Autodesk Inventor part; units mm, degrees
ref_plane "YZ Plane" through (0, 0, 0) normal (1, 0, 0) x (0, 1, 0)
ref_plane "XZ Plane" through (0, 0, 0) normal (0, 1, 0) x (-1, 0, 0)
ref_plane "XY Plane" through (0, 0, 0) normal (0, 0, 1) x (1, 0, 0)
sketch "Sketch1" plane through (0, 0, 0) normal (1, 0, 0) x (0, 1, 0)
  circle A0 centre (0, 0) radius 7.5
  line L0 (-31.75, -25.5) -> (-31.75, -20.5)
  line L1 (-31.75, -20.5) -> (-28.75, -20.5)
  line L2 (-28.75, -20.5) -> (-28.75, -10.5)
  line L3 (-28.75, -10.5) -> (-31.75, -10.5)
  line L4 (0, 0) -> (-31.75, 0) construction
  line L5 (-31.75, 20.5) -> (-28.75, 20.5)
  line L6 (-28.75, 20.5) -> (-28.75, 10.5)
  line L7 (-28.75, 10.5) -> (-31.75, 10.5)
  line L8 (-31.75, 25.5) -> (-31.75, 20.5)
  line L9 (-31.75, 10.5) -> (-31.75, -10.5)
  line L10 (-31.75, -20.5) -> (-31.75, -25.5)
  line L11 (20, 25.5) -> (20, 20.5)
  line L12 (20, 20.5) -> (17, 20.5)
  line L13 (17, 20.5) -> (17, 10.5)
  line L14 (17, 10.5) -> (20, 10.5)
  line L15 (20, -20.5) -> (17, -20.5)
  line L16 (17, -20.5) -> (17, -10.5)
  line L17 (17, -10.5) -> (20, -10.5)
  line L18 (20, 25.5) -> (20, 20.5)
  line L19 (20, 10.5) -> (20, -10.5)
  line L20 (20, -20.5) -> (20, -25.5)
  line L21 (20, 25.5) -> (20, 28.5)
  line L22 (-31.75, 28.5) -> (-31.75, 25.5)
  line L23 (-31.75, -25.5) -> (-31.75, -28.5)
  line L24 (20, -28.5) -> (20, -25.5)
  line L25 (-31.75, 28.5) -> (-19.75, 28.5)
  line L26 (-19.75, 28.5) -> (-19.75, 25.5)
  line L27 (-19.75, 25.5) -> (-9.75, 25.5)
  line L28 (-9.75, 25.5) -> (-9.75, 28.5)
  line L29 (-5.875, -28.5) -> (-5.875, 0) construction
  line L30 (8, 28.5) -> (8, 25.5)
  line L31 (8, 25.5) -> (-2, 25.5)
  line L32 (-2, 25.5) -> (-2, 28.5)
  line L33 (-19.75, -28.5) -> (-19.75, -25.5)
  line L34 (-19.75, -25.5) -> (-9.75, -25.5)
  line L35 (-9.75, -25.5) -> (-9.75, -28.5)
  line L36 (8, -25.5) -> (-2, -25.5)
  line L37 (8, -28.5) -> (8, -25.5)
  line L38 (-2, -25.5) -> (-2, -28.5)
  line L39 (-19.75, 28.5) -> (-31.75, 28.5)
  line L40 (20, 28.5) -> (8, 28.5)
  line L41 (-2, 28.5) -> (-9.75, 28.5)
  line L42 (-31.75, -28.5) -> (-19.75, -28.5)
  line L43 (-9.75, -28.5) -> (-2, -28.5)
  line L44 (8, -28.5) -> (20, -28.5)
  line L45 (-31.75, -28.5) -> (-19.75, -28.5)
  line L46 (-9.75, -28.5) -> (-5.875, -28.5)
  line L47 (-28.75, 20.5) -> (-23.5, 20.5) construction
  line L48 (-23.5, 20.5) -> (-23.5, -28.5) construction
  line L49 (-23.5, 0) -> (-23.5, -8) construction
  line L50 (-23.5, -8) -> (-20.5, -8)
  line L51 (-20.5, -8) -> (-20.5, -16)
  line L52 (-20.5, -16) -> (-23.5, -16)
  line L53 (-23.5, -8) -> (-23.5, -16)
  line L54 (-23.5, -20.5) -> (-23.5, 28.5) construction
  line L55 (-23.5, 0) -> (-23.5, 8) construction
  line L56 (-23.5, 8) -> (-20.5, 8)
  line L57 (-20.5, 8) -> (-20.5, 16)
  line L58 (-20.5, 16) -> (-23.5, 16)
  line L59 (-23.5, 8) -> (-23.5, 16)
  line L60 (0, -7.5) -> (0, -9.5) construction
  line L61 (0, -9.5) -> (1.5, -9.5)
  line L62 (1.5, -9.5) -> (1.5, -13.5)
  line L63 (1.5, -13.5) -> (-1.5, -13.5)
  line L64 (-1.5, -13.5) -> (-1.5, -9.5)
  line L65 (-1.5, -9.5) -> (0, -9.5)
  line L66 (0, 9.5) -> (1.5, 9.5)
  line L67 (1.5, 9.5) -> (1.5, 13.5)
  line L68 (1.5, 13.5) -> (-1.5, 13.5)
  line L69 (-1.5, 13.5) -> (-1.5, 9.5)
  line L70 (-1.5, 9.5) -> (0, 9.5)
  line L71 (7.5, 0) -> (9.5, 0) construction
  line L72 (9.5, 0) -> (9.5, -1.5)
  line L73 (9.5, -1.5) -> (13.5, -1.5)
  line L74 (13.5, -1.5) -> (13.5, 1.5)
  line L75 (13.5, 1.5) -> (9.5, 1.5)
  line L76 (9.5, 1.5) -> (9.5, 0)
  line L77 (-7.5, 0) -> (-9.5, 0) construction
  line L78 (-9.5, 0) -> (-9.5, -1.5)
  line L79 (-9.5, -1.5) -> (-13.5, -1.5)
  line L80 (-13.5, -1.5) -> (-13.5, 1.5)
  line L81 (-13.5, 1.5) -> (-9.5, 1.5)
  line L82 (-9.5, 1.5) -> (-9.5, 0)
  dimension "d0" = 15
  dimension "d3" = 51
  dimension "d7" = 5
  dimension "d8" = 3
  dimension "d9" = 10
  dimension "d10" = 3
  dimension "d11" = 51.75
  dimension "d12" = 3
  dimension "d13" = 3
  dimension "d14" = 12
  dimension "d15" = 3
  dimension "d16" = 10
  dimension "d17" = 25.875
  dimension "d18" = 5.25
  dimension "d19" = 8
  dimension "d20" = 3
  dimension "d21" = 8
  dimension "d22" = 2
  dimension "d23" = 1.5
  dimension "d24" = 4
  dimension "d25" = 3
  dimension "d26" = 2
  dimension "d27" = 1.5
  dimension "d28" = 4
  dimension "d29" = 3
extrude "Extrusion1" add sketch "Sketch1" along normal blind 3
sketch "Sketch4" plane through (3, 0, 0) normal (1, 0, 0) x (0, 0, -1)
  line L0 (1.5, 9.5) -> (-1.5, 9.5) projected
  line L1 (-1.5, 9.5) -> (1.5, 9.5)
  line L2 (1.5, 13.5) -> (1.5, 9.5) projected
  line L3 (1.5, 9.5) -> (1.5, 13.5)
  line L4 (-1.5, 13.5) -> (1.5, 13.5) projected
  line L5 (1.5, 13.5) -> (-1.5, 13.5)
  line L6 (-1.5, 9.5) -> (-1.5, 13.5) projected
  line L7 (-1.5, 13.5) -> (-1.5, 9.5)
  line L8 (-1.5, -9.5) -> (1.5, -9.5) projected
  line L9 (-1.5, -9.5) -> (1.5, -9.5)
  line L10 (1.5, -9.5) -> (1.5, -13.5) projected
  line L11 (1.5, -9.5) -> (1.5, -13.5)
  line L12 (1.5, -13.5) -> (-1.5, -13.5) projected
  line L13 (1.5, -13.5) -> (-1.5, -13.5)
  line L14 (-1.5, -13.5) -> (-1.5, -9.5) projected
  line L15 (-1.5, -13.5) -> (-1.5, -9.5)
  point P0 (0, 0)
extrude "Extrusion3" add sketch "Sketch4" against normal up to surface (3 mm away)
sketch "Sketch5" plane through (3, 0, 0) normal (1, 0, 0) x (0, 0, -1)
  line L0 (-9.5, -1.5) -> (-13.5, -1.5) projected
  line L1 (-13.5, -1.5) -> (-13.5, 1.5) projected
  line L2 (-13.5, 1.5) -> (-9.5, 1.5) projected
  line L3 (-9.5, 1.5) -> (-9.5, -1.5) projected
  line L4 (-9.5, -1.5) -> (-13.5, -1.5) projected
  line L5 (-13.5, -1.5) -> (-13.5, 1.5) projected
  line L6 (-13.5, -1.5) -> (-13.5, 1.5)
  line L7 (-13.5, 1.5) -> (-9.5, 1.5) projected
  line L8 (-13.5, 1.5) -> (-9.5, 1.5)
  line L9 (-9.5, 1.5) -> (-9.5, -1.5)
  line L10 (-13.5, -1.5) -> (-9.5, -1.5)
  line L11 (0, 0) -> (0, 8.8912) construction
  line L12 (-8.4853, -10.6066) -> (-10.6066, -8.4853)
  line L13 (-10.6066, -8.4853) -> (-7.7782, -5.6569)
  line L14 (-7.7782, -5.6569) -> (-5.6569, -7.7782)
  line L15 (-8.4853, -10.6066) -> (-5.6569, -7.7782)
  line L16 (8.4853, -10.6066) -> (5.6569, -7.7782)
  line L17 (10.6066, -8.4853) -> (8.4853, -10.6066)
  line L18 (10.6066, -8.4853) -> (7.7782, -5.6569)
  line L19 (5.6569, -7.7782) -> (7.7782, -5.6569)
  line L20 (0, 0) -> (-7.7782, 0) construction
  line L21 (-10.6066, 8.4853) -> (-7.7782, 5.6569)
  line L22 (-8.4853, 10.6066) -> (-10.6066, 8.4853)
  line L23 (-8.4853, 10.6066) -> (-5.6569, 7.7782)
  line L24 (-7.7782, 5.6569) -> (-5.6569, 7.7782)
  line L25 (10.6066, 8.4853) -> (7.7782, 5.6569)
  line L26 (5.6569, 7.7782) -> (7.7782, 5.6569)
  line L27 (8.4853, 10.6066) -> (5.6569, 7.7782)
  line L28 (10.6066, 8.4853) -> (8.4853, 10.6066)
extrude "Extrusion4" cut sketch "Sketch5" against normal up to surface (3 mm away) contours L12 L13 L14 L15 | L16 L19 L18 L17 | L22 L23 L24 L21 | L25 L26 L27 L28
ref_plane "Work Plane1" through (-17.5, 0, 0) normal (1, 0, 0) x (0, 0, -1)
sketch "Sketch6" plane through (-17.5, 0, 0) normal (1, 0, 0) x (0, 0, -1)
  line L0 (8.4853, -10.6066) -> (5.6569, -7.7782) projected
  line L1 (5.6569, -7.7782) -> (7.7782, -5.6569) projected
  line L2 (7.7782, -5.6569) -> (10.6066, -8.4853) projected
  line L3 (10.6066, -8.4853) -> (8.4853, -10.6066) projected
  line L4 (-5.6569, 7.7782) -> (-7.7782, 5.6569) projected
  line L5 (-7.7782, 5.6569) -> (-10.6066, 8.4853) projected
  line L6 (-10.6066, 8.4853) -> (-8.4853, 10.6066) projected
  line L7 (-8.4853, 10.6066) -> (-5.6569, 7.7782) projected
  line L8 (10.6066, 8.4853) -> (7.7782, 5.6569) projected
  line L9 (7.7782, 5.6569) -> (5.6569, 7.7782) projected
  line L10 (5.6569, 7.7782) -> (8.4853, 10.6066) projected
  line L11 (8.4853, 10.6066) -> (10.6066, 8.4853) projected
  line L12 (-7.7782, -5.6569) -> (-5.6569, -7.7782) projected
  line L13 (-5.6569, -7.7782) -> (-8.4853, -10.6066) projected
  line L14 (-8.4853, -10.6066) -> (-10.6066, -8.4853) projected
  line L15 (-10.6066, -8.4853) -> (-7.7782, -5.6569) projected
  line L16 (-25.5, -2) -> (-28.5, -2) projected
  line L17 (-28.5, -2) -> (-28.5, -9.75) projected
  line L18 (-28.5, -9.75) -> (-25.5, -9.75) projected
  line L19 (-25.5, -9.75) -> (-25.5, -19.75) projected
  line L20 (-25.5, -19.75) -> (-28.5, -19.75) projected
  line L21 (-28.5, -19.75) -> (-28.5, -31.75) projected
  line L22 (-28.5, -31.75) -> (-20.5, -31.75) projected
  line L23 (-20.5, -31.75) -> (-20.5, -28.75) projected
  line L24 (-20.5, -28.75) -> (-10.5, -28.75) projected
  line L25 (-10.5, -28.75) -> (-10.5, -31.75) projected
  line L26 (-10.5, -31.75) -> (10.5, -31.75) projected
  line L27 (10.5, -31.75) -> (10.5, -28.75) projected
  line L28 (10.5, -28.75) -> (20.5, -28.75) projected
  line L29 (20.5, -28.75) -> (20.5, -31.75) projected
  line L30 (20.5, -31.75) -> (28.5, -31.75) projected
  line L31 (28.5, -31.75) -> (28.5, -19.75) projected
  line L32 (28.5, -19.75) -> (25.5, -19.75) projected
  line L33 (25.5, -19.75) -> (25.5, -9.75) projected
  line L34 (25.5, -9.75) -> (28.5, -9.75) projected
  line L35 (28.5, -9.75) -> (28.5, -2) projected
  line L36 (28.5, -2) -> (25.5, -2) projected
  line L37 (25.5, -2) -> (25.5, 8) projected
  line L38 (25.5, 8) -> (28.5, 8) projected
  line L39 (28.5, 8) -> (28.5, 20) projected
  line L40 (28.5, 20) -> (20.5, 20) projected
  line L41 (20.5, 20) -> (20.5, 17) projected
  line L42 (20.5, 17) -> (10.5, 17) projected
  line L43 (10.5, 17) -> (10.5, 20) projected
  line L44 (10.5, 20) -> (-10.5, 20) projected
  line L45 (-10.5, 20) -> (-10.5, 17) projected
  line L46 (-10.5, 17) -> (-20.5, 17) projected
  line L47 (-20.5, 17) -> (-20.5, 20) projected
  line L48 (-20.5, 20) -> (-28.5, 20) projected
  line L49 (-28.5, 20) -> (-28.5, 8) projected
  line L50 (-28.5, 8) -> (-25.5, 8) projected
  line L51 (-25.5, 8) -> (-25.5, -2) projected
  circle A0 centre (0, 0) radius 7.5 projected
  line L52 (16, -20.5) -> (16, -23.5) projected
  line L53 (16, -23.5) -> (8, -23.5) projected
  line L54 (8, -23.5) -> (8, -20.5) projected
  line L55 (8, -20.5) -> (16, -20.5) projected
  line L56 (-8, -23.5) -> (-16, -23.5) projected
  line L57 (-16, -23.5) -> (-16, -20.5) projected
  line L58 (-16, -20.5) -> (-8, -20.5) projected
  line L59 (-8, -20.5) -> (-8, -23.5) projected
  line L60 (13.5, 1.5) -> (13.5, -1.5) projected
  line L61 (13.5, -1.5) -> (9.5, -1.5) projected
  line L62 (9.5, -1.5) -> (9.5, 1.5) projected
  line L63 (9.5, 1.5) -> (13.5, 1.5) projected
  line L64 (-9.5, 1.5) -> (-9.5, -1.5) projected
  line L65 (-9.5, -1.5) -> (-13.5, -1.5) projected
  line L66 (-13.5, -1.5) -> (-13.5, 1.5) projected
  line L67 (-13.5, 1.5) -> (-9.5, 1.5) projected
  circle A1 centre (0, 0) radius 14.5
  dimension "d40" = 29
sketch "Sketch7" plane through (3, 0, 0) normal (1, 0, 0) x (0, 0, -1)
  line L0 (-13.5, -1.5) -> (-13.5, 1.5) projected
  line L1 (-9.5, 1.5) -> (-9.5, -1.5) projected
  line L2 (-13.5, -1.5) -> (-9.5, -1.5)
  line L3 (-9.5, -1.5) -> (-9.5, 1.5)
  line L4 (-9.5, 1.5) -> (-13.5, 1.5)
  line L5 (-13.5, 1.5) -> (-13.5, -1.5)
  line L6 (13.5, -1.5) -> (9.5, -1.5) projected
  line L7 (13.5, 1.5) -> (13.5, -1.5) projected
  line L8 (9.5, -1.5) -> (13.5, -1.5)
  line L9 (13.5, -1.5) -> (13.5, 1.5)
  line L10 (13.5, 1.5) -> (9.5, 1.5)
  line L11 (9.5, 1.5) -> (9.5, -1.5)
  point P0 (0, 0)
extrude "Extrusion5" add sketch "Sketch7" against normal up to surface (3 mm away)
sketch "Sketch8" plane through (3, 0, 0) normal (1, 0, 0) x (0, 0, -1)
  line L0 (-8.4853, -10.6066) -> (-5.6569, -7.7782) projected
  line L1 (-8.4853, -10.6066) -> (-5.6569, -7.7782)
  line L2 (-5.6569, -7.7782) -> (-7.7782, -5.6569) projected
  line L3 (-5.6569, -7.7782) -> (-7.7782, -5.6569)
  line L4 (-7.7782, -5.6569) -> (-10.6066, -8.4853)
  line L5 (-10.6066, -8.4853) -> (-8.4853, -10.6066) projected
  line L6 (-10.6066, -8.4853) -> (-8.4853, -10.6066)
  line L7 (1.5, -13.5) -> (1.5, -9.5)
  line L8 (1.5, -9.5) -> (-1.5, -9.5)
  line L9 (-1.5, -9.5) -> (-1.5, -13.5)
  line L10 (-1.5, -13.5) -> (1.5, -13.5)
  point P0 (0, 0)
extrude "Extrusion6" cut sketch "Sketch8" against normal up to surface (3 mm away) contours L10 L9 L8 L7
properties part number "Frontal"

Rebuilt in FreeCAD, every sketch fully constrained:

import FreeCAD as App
import Part
import Sketcher

V = App.Vector


def add_polygon(sketch, points):
    """Adds a closed chain of lines whose ends are joined by coincident constraints."""
    first, n = sketch.GeometryCount, len(points)
    for a, b in zip(points, points[1:] + points[:1]):
        sketch.addGeometry(Part.LineSegment(App.Vector(*a, 0), App.Vector(*b, 0)), False)
    for i in range(n):
        sketch.addConstraint(Sketcher.Constraint("Coincident", first + i, 2, first + (i + 1) % n, 1))

doc = App.newDocument("Part")
body = doc.addObject("PartDesign::Body", "Body")

# Sketch on YZ plane
sketch1 = body.newObject("Sketcher::SketchObject", "Sketch")
sketch1.AttachmentSupport = (doc.getObject("YZ_Plane"), [""])
sketch1.MapMode = "FlatFace"
add_polygon(sketch1, [(-31.75, -20.5), (-31.75, -28.5), (-19.75, -28.5), (-19.75, -25.5), (-9.75, -25.5), (-9.75, -28.5), (-2, -28.5), (-2, -25.5), (8, -25.5), (8, -28.5), (20, -28.5), (20, -20.5), (17, -20.5), (17, -10.5), (20, -10.5), (20, 10.5), (17, 10.5), (17, 20.5), (20, 20.5), (20, 28.5), (8, 28.5), (8, 25.5), (-2, 25.5), (-2, 28.5), (-9.75, 28.5), (-9.75, 25.5), (-19.75, 25.5), (-19.75, 28.5), (-31.75, 28.5), (-31.75, 20.5), (-28.75, 20.5), (-28.75, 10.5), (-31.75, 10.5), (-31.75, -10.5), (-28.75, -10.5), (-28.75, -20.5)])  # lines 0-35
add_polygon(sketch1, [(-23.5, -16), (-23.5, -8), (-20.5, -8), (-20.5, -16)])  # lines 36-39
add_polygon(sketch1, [(-1.5, -9.5), (1.5, -9.5), (1.5, -13.5), (-1.5, -13.5)])  # lines 40-43
add_polygon(sketch1, [(-20.5, 8), (-23.5, 8), (-23.5, 16), (-20.5, 16)])  # lines 44-47
add_polygon(sketch1, [(-9.5, 1.5), (-9.5, -1.5), (-13.5, -1.5), (-13.5, 1.5)])  # lines 48-51
sketch1.addGeometry(Part.Circle(V(0, 0, 0), V(0, 0, 1), 7.5), False)  # 52
add_polygon(sketch1, [(1.5, 9.5), (-1.5, 9.5), (-1.5, 13.5), (1.5, 13.5)])  # lines 53-56
add_polygon(sketch1, [(9.5, -1.5), (9.5, 1.5), (13.5, 1.5), (13.5, -1.5)])  # lines 57-60
sketch1.addConstraint([
    Sketcher.Constraint("Vertical", 0),
    Sketcher.Constraint("Horizontal", 1),
    Sketcher.Constraint("Vertical", 2),
    Sketcher.Constraint("Horizontal", 3),
    Sketcher.Constraint("Vertical", 4),
    Sketcher.Constraint("Horizontal", 5),
    Sketcher.Constraint("Vertical", 6),
    Sketcher.Constraint("Horizontal", 7),
    Sketcher.Constraint("Vertical", 8),
    Sketcher.Constraint("Horizontal", 9),
    Sketcher.Constraint("Vertical", 10),
    Sketcher.Constraint("Horizontal", 11),
    Sketcher.Constraint("Vertical", 12),
    Sketcher.Constraint("Horizontal", 13),
    Sketcher.Constraint("Vertical", 14),
    Sketcher.Constraint("Horizontal", 15),
    Sketcher.Constraint("Vertical", 16),
    Sketcher.Constraint("Horizontal", 17),
    Sketcher.Constraint("Vertical", 18),
    Sketcher.Constraint("Horizontal", 19),
    Sketcher.Constraint("Vertical", 20),
    Sketcher.Constraint("Horizontal", 21),
    Sketcher.Constraint("Vertical", 22),
    Sketcher.Constraint("Horizontal", 23),
    Sketcher.Constraint("Vertical", 24),
    Sketcher.Constraint("Horizontal", 25),
    Sketcher.Constraint("Vertical", 26),
    Sketcher.Constraint("Horizontal", 27),
    Sketcher.Constraint("Vertical", 28),
    Sketcher.Constraint("Horizontal", 29),
    Sketcher.Constraint("Vertical", 30),
    Sketcher.Constraint("Horizontal", 31),
    Sketcher.Constraint("Vertical", 32),
    Sketcher.Constraint("Horizontal", 33),
    Sketcher.Constraint("Vertical", 34),
    Sketcher.Constraint("Horizontal", 35),
    Sketcher.Constraint("Vertical", 36),
    Sketcher.Constraint("Horizontal", 37),
    Sketcher.Constraint("Vertical", 38),
    Sketcher.Constraint("Horizontal", 39),
    Sketcher.Constraint("Horizontal", 40),
    Sketcher.Constraint("Vertical", 41),
    Sketcher.Constraint("Horizontal", 42),
    Sketcher.Constraint("Vertical", 43),
    Sketcher.Constraint("Horizontal", 44),
    Sketcher.Constraint("Vertical", 45),
    Sketcher.Constraint("Horizontal", 46),
    Sketcher.Constraint("Vertical", 47),
    Sketcher.Constraint("Vertical", 48),
    Sketcher.Constraint("Horizontal", 49),
    Sketcher.Constraint("Vertical", 50),
    Sketcher.Constraint("Horizontal", 51),
    Sketcher.Constraint("Horizontal", 53),
    Sketcher.Constraint("Vertical", 54),
    Sketcher.Constraint("Horizontal", 55),
    Sketcher.Constraint("Vertical", 56),
    Sketcher.Constraint("Vertical", 57),
    Sketcher.Constraint("Horizontal", 58),
    Sketcher.Constraint("Vertical", 59),
    Sketcher.Constraint("Horizontal", 60),
    Sketcher.Constraint("Coincident", 52, 3, -1, 1),
    Sketcher.Constraint("Symmetric", 40, 2, 53, 2, -1, 1),
    Sketcher.Constraint("Symmetric", 42, 2, 55, 2, -1, 1),
    Sketcher.Constraint("Symmetric", 48, 2, 57, 2, -1, 1),
    Sketcher.Constraint("Symmetric", 50, 2, 59, 2, -1, 1),
    Sketcher.Constraint("Symmetric", 12, 2, 15, 2, -1),
    Sketcher.Constraint("Symmetric", 10, 2, 17, 2, -1),
    Sketcher.Constraint("Symmetric", 8, 2, 19, 2, -1),
    Sketcher.Constraint("Symmetric", 6, 2, 21, 2, -1),
    Sketcher.Constraint("Symmetric", 4, 2, 23, 2, -1),
    Sketcher.Constraint("Symmetric", 2, 2, 25, 2, -1),
    Sketcher.Constraint("Symmetric", 0, 2, 27, 2, -1),
    Sketcher.Constraint("Symmetric", 30, 2, 33, 2, -1),
    Sketcher.Constraint("Symmetric", 36, 2, 44, 2, -1),
    Sketcher.Constraint("Symmetric", 38, 2, 46, 2, -1),
    Sketcher.Constraint("Horizontal", 1, 2, 4, 2),
    Sketcher.Constraint("Horizontal", 3, 2, 6, 2),
    Sketcher.Constraint("Horizontal", 5, 2, 8, 2),
    Sketcher.Constraint("Horizontal", 17, 2, 28, 2),
    Sketcher.Constraint("Horizontal", 15, 2, 30, 2),
    Sketcher.Constraint("Horizontal", 11, 2, 34, 2),
    Sketcher.Constraint("Horizontal", 51, 2, 57, 2),
    Sketcher.Constraint("Vertical", 10, 2, 13, 2),
    Sketcher.Constraint("Vertical", 28, 2, 31, 2),
    Sketcher.Constraint("Vertical", 43, 2, 53, 2),
    Sketcher.Constraint("Equal", 3, 7),
    Sketcher.Constraint("Equal", 1, 9),
    Sketcher.Constraint("Equal", 17, 29),
    Sketcher.Constraint("Equal", 35, 37),
    Sketcher.Constraint("Equal", 39, 40),
    Sketcher.Constraint("Equal", 55, 2),
    Sketcher.Constraint("Equal", 25, 12),
    Sketcher.Constraint("Equal", 28, 36),
    Sketcher.Constraint("Equal", 60, 41),
    Sketcher.Constraint("Equal", 26, 48),
    Sketcher.Constraint("Diameter", 52, 15.0),
    Sketcher.Constraint("DistanceX", 1, 1, 1, 2, 12.0),
    Sketcher.Constraint("DistanceX", 3, 1, 3, 2, 10.0),
    Sketcher.Constraint("DistanceX", 11, 2, 11, 1, 3.0),
    Sketcher.Constraint("DistanceX", 49, 2, 49, 1, 4.0),
    Sketcher.Constraint("DistanceY", 0, 2, 0, 1, 8.0),
    Sketcher.Constraint("DistanceX", 5, 2, -1, 1, 2.0),
    Sketcher.Constraint("DistanceY", 36, 2, -1, 1, 8.0),
    Sketcher.Constraint("DistanceY", 14, 1, 14, 2, 21.0),
    Sketcher.Constraint("DistanceX", 5, 1, 5, 2, 7.75),
    Sketcher.Constraint("DistanceX", 36, 2, -1, 1, 23.5),
    Sketcher.Constraint("DistanceY", 40, 2, -1, 1, 9.5),
    Sketcher.Constraint("DistanceX", 48, 2, -1, 1, 9.5),
])
pad1 = body.newObject("PartDesign::Pad", "Pad")
pad1.Profile = sketch1
pad1.Length = 3

# Sketch on YZ plane
sketch2 = body.newObject("Sketcher::SketchObject", "Sketch001")
sketch2.AttachmentSupport = (doc.getObject("YZ_Plane"), [""])
sketch2.MapMode = "FlatFace"
sketch2.AttachmentOffset = App.Placement(V(0, 0, 3), App.Rotation())
add_polygon(sketch2, [(9.5, 1.5), (9.5, -1.5), (13.5, -1.5), (13.5, 1.5)])  # lines 0-3
add_polygon(sketch2, [(-9.5, -1.5), (-9.5, 1.5), (-13.5, 1.5), (-13.5, -1.5)])  # lines 4-7
sketch2.addConstraint([
    Sketcher.Constraint("Vertical", 0),
    Sketcher.Constraint("Horizontal", 1),
    Sketcher.Constraint("Vertical", 2),
    Sketcher.Constraint("Horizontal", 3),
    Sketcher.Constraint("Vertical", 4),
    Sketcher.Constraint("Horizontal", 5),
    Sketcher.Constraint("Vertical", 6),
    Sketcher.Constraint("Horizontal", 7),
    Sketcher.Constraint("Symmetric", 0, 2, 4, 2, -1, 1),
    Sketcher.Constraint("Symmetric", 2, 2, 6, 2, -1, 1),
    Sketcher.Constraint("Horizontal", 3, 2, 4, 2),
    Sketcher.Constraint("DistanceX", 1, 1, 1, 2, 4.0),
    Sketcher.Constraint("DistanceY", 0, 2, 0, 1, 3.0),
    Sketcher.Constraint("DistanceX", 4, 2, 3, 2, 19.0),
])
pad2 = body.newObject("PartDesign::Pad", "Pad001")
pad2.Profile = sketch2
pad2.Length = 3
pad2.Reversed = True

# Sketch on YZ plane
sketch3 = body.newObject("Sketcher::SketchObject", "Sketch002")
sketch3.AttachmentSupport = (doc.getObject("YZ_Plane"), [""])
sketch3.MapMode = "FlatFace"
sketch3.AttachmentOffset = App.Placement(V(0, 0, 3), App.Rotation())
add_polygon(sketch3, [(-8.4853, 10.6066), (-10.6066, 8.4853), (-7.7782, 5.6569), (-5.6569, 7.7782)])  # lines 0-3
add_polygon(sketch3, [(-7.7782, -5.6569), (-10.6066, -8.4853), (-8.4853, -10.6066), (-5.6569, -7.7782)])  # lines 4-7
add_polygon(sketch3, [(10.6066, 8.4853), (8.4853, 10.6066), (5.6569, 7.7782), (7.7782, 5.6569)])  # lines 8-11
add_polygon(sketch3, [(5.6569, -7.7782), (8.4853, -10.6066), (10.6066, -8.4853), (7.7782, -5.6569)])  # lines 12-15
sketch3.addConstraint([
    Sketcher.Constraint("Symmetric", 5, 2, 8, 2, -1, 1),
    Sketcher.Constraint("Symmetric", 6, 2, 9, 2, -1, 1),
    Sketcher.Constraint("Symmetric", 7, 2, 10, 2, -1, 1),
    Sketcher.Constraint("Symmetric", 4, 2, 11, 2, -1, 1),
    Sketcher.Constraint("Symmetric", 3, 2, 12, 2, -1, 1),
    Sketcher.Constraint("Symmetric", 0, 2, 13, 2, -1, 1),
    Sketcher.Constraint("Symmetric", 1, 2, 14, 2, -1, 1),
    Sketcher.Constraint("Symmetric", 2, 2, 15, 2, -1, 1),
    Sketcher.Constraint("Symmetric", 3, 2, 8, 2, -2),
    Sketcher.Constraint("Symmetric", 2, 2, 9, 2, -2),
    Sketcher.Constraint("Symmetric", 1, 2, 10, 2, -2),
    Sketcher.Constraint("Symmetric", 0, 2, 11, 2, -2),
    Sketcher.Constraint("Perpendicular", 0, 1),
    Sketcher.Constraint("Perpendicular", 1, 2),
    Sketcher.Constraint("Perpendicular", 2, 3),
    Sketcher.Constraint("Perpendicular", 3, 4),
    Sketcher.Constraint("Distance", 0, 3.0),
    Sketcher.Constraint("Distance", 1, 4.0),
    Sketcher.Constraint("DistanceY", -1, 1, 1, 2, 5.657),
    Sketcher.Constraint("DistanceX", 2, 2, -1, 1, 5.657),
])
pocket1 = body.newObject("PartDesign::Pocket", "Pocket")
pocket1.Profile = sketch3
pocket1.Length = 3

# Sketch on YZ plane
sketch4 = body.newObject("Sketcher::SketchObject", "Sketch003")
sketch4.AttachmentSupport = (doc.getObject("YZ_Plane"), [""])
sketch4.MapMode = "FlatFace"
sketch4.AttachmentOffset = App.Placement(V(0, 0, 3), App.Rotation())
add_polygon(sketch4, [(1.5, 13.5), (-1.5, 13.5), (-1.5, 9.5), (1.5, 9.5)])  # lines 0-3
add_polygon(sketch4, [(-1.5, -9.5), (-1.5, -13.5), (1.5, -13.5), (1.5, -9.5)])  # lines 4-7
sketch4.addConstraint([
    Sketcher.Constraint("Horizontal", 0),
    Sketcher.Constraint("Vertical", 1),
    Sketcher.Constraint("Horizontal", 2),
    Sketcher.Constraint("Vertical", 3),
    Sketcher.Constraint("Vertical", 4),
    Sketcher.Constraint("Horizontal", 5),
    Sketcher.Constraint("Vertical", 6),
    Sketcher.Constraint("Horizontal", 7),
    Sketcher.Constraint("Symmetric", 3, 2, 4, 2, -1, 1),
    Sketcher.Constraint("Symmetric", 1, 2, 6, 2, -1, 1),
    Sketcher.Constraint("Vertical", 1, 2, 4, 2),
    Sketcher.Constraint("DistanceX", 0, 2, 0, 1, 3.0),
    Sketcher.Constraint("DistanceY", 1, 2, 1, 1, 4.0),
    Sketcher.Constraint("DistanceY", 4, 2, 1, 2, 23.0),
])
pad3 = body.newObject("PartDesign::Pad", "Pad002")
pad3.Profile = sketch4
pad3.Length = 3
pad3.Reversed = True

# Sketch on YZ plane
sketch5 = body.newObject("Sketcher::SketchObject", "Sketch004")
sketch5.AttachmentSupport = (doc.getObject("YZ_Plane"), [""])
sketch5.MapMode = "FlatFace"
sketch5.AttachmentOffset = App.Placement(V(0, 0, 3), App.Rotation())
add_polygon(sketch5, [(-13.5, 1.5), (-13.5, -1.5), (-9.5, -1.5), (-9.5, 1.5)])  # lines 0-3
sketch5.addConstraint([
    Sketcher.Constraint("Vertical", 0),
    Sketcher.Constraint("Horizontal", 1),
    Sketcher.Constraint("Vertical", 2),
    Sketcher.Constraint("Horizontal", 3),
    Sketcher.Constraint("DistanceX", 1, 1, 1, 2, 4.0),
    Sketcher.Constraint("DistanceY", 0, 2, 0, 1, 3.0),
    Sketcher.Constraint("DistanceX", 0, 2, -1, 1, 13.5),
    Sketcher.Constraint("DistanceY", 0, 2, -1, 1, 1.5),
])
pocket2 = body.newObject("PartDesign::Pocket", "Pocket001")
pocket2.Profile = sketch5
pocket2.Length = 3

doc.recompute()
